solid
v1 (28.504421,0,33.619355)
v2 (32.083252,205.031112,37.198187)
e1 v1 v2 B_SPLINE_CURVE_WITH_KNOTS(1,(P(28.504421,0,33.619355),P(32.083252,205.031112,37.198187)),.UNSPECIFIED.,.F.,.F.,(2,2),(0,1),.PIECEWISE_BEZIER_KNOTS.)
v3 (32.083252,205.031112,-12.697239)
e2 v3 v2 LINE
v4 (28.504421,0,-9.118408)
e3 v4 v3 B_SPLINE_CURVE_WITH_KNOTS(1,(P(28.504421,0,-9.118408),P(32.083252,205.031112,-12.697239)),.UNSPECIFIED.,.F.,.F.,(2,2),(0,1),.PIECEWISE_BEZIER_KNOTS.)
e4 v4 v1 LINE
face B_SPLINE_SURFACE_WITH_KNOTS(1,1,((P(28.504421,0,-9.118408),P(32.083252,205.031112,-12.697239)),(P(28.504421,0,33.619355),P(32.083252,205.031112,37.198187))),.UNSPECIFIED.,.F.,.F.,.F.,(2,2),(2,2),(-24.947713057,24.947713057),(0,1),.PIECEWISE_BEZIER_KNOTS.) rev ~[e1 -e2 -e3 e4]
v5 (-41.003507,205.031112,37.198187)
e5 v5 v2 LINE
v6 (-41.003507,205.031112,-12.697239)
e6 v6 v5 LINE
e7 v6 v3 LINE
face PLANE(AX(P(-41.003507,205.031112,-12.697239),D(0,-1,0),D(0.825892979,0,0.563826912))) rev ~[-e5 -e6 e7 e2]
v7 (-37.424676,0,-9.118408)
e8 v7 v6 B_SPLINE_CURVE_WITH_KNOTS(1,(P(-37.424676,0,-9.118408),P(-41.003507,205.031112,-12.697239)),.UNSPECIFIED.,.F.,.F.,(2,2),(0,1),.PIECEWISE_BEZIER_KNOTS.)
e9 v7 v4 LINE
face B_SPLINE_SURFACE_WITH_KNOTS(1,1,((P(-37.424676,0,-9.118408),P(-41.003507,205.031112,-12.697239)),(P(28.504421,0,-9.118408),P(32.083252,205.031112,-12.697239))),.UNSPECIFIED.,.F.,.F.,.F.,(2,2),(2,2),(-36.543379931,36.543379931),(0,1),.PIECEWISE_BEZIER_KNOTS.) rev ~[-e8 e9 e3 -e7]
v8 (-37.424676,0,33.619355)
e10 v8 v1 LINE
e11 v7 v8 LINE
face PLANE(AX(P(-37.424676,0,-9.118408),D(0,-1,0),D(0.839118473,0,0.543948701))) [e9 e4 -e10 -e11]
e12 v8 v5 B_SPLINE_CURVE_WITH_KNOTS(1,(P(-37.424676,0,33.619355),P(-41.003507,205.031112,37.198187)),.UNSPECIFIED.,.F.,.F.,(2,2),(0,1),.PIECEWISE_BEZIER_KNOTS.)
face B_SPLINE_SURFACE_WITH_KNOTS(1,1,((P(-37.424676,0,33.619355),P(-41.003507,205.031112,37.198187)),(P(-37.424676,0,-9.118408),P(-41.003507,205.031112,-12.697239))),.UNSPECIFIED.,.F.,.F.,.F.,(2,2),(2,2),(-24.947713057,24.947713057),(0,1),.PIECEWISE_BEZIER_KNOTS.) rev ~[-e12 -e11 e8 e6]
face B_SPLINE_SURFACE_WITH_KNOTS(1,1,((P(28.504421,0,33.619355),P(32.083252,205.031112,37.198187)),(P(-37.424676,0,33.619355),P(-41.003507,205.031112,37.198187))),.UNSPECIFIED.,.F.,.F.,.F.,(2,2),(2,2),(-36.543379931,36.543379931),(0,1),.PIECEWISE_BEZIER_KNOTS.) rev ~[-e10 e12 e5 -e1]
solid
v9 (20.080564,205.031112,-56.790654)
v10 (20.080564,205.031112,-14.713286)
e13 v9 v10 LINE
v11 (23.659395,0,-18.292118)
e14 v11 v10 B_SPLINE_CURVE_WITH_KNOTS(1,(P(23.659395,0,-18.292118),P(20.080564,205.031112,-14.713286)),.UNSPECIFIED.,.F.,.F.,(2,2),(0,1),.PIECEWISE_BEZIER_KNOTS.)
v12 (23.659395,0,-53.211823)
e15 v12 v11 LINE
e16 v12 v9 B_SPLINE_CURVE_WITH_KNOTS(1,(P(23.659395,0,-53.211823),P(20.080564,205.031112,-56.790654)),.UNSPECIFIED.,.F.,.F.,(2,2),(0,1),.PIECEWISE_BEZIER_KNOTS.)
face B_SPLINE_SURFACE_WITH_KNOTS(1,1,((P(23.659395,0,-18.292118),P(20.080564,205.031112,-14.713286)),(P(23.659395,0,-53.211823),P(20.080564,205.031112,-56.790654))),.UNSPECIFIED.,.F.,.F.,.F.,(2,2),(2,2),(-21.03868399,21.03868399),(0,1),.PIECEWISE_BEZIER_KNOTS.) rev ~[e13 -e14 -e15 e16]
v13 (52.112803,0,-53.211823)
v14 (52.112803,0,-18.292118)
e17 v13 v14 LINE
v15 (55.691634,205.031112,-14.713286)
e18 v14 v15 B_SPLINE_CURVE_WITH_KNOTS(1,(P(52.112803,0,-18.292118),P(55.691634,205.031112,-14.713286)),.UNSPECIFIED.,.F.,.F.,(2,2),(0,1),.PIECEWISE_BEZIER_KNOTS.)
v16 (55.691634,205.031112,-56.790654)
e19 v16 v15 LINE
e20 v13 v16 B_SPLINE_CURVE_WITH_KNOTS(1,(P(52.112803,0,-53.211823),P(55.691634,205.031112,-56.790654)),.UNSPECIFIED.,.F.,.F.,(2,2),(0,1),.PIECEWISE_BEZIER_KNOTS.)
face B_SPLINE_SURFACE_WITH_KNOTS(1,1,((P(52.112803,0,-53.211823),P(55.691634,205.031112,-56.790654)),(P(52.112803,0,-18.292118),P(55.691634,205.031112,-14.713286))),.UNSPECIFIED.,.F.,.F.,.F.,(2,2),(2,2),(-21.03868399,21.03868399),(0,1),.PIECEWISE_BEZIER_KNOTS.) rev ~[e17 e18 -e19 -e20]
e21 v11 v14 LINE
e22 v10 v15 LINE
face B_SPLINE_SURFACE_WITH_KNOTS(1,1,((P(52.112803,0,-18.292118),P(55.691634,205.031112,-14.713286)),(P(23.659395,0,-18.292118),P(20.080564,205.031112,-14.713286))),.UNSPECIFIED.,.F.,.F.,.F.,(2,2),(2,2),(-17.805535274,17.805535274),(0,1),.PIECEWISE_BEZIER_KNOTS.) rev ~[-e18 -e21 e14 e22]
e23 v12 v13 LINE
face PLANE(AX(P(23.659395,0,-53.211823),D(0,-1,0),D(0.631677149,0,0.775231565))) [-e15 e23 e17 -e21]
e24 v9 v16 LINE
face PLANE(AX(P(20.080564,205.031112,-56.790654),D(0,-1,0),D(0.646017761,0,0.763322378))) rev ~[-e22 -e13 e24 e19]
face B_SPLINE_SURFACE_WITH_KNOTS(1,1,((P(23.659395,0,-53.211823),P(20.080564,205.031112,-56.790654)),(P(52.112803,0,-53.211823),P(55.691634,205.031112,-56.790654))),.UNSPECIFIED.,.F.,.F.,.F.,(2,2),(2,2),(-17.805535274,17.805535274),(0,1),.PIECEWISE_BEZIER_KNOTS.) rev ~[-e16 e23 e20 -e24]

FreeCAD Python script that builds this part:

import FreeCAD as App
import Part
import Sketcher
Q = App.Units.Quantity

doc = App.newDocument("Part")
body = doc.addObject("PartDesign::Body", "Body")

# Sketch on XZ plane
sketch1 = body.newObject("Sketcher::SketchObject", "Sketch")
sketch1.AttachmentSupport = (doc.getObject("XZ_Plane"), [""])
sketch1.MapMode = "FlatFace"
sketch1.addGeometry([
    Part.LineSegment(App.Vector(-37, 34, 0), App.Vector(-37, -9, 0)),
    Part.LineSegment(App.Vector(-37, -9, 0), App.Vector(29, -9, 0)),
    Part.LineSegment(App.Vector(29, -9, 0), App.Vector(29, 34, 0)),
    Part.LineSegment(App.Vector(29, 34, 0), App.Vector(-37, 34, 0)),
], False)
sketch1.addConstraint([
    Sketcher.Constraint("Coincident", 0, 2, 1, 1),
    Sketcher.Constraint("Coincident", 1, 2, 2, 1),
    Sketcher.Constraint("Coincident", 2, 2, 3, 1),
    Sketcher.Constraint("Coincident", 3, 2, 0, 1),
    Sketcher.Constraint("Vertical", 0),
    Sketcher.Constraint("Horizontal", 1),
    Sketcher.Constraint("Vertical", 2),
    Sketcher.Constraint("Horizontal", 3),
    Sketcher.Constraint("DistanceX", 1, 1, 1, 2, Q("65.929097 mm")),
    Sketcher.Constraint("DistanceY", 0, 2, 0, 1, Q("42.737763 mm")),
    Sketcher.Constraint("DistanceX", -1, 1, 1, 2, Q("28.504421 mm")),
    Sketcher.Constraint("DistanceY", 0, 2, -1, 1, Q("9.118408 mm")),
])
pad1 = body.newObject("PartDesign::Pad", "Pad")
pad1.Profile = sketch1
pad1.Length = 205.031112
pad1.Reversed = True
pad1.TaperAngle = 1
body2 = doc.addObject("PartDesign::Body", "Body001")

# Sketch on XZ plane
sketch2 = body2.newObject("Sketcher::SketchObject", "Sketch001")
sketch2.AttachmentSupport = (doc.getObject("XZ_Plane001"), [""])
sketch2.MapMode = "FlatFace"
sketch2.addGeometry([
    Part.LineSegment(App.Vector(24, -18, 0), App.Vector(24, -53, 0)),
    Part.LineSegment(App.Vector(24, -53, 0), App.Vector(52, -53, 0)),
    Part.LineSegment(App.Vector(52, -53, 0), App.Vector(52, -18, 0)),
    Part.LineSegment(App.Vector(52, -18, 0), App.Vector(24, -18, 0)),
], False)
sketch2.addConstraint([
    Sketcher.Constraint("Coincident", 0, 2, 1, 1),
    Sketcher.Constraint("Coincident", 1, 2, 2, 1),
    Sketcher.Constraint("Coincident", 2, 2, 3, 1),
    Sketcher.Constraint("Coincident", 3, 2, 0, 1),
    Sketcher.Constraint("Vertical", 0),
    Sketcher.Constraint("Horizontal", 1),
    Sketcher.Constraint("Vertical", 2),
    Sketcher.Constraint("Horizontal", 3),
    Sketcher.Constraint("DistanceX", 1, 1, 1, 2, Q("28.453408 mm")),
    Sketcher.Constraint("DistanceY", 0, 2, 0, 1, Q("34.919705 mm")),
    Sketcher.Constraint("DistanceX", -1, 1, 0, 2, Q("23.659395 mm")),
    Sketcher.Constraint("DistanceY", 0, 2, -1, 1, Q("53.211823 mm")),
])
pad2 = body2.newObject("PartDesign::Pad", "Pad001")
pad2.Profile = sketch2
pad2.Length = 205.031112
pad2.Reversed = True
pad2.TaperAngle = 1

doc.recompute()
